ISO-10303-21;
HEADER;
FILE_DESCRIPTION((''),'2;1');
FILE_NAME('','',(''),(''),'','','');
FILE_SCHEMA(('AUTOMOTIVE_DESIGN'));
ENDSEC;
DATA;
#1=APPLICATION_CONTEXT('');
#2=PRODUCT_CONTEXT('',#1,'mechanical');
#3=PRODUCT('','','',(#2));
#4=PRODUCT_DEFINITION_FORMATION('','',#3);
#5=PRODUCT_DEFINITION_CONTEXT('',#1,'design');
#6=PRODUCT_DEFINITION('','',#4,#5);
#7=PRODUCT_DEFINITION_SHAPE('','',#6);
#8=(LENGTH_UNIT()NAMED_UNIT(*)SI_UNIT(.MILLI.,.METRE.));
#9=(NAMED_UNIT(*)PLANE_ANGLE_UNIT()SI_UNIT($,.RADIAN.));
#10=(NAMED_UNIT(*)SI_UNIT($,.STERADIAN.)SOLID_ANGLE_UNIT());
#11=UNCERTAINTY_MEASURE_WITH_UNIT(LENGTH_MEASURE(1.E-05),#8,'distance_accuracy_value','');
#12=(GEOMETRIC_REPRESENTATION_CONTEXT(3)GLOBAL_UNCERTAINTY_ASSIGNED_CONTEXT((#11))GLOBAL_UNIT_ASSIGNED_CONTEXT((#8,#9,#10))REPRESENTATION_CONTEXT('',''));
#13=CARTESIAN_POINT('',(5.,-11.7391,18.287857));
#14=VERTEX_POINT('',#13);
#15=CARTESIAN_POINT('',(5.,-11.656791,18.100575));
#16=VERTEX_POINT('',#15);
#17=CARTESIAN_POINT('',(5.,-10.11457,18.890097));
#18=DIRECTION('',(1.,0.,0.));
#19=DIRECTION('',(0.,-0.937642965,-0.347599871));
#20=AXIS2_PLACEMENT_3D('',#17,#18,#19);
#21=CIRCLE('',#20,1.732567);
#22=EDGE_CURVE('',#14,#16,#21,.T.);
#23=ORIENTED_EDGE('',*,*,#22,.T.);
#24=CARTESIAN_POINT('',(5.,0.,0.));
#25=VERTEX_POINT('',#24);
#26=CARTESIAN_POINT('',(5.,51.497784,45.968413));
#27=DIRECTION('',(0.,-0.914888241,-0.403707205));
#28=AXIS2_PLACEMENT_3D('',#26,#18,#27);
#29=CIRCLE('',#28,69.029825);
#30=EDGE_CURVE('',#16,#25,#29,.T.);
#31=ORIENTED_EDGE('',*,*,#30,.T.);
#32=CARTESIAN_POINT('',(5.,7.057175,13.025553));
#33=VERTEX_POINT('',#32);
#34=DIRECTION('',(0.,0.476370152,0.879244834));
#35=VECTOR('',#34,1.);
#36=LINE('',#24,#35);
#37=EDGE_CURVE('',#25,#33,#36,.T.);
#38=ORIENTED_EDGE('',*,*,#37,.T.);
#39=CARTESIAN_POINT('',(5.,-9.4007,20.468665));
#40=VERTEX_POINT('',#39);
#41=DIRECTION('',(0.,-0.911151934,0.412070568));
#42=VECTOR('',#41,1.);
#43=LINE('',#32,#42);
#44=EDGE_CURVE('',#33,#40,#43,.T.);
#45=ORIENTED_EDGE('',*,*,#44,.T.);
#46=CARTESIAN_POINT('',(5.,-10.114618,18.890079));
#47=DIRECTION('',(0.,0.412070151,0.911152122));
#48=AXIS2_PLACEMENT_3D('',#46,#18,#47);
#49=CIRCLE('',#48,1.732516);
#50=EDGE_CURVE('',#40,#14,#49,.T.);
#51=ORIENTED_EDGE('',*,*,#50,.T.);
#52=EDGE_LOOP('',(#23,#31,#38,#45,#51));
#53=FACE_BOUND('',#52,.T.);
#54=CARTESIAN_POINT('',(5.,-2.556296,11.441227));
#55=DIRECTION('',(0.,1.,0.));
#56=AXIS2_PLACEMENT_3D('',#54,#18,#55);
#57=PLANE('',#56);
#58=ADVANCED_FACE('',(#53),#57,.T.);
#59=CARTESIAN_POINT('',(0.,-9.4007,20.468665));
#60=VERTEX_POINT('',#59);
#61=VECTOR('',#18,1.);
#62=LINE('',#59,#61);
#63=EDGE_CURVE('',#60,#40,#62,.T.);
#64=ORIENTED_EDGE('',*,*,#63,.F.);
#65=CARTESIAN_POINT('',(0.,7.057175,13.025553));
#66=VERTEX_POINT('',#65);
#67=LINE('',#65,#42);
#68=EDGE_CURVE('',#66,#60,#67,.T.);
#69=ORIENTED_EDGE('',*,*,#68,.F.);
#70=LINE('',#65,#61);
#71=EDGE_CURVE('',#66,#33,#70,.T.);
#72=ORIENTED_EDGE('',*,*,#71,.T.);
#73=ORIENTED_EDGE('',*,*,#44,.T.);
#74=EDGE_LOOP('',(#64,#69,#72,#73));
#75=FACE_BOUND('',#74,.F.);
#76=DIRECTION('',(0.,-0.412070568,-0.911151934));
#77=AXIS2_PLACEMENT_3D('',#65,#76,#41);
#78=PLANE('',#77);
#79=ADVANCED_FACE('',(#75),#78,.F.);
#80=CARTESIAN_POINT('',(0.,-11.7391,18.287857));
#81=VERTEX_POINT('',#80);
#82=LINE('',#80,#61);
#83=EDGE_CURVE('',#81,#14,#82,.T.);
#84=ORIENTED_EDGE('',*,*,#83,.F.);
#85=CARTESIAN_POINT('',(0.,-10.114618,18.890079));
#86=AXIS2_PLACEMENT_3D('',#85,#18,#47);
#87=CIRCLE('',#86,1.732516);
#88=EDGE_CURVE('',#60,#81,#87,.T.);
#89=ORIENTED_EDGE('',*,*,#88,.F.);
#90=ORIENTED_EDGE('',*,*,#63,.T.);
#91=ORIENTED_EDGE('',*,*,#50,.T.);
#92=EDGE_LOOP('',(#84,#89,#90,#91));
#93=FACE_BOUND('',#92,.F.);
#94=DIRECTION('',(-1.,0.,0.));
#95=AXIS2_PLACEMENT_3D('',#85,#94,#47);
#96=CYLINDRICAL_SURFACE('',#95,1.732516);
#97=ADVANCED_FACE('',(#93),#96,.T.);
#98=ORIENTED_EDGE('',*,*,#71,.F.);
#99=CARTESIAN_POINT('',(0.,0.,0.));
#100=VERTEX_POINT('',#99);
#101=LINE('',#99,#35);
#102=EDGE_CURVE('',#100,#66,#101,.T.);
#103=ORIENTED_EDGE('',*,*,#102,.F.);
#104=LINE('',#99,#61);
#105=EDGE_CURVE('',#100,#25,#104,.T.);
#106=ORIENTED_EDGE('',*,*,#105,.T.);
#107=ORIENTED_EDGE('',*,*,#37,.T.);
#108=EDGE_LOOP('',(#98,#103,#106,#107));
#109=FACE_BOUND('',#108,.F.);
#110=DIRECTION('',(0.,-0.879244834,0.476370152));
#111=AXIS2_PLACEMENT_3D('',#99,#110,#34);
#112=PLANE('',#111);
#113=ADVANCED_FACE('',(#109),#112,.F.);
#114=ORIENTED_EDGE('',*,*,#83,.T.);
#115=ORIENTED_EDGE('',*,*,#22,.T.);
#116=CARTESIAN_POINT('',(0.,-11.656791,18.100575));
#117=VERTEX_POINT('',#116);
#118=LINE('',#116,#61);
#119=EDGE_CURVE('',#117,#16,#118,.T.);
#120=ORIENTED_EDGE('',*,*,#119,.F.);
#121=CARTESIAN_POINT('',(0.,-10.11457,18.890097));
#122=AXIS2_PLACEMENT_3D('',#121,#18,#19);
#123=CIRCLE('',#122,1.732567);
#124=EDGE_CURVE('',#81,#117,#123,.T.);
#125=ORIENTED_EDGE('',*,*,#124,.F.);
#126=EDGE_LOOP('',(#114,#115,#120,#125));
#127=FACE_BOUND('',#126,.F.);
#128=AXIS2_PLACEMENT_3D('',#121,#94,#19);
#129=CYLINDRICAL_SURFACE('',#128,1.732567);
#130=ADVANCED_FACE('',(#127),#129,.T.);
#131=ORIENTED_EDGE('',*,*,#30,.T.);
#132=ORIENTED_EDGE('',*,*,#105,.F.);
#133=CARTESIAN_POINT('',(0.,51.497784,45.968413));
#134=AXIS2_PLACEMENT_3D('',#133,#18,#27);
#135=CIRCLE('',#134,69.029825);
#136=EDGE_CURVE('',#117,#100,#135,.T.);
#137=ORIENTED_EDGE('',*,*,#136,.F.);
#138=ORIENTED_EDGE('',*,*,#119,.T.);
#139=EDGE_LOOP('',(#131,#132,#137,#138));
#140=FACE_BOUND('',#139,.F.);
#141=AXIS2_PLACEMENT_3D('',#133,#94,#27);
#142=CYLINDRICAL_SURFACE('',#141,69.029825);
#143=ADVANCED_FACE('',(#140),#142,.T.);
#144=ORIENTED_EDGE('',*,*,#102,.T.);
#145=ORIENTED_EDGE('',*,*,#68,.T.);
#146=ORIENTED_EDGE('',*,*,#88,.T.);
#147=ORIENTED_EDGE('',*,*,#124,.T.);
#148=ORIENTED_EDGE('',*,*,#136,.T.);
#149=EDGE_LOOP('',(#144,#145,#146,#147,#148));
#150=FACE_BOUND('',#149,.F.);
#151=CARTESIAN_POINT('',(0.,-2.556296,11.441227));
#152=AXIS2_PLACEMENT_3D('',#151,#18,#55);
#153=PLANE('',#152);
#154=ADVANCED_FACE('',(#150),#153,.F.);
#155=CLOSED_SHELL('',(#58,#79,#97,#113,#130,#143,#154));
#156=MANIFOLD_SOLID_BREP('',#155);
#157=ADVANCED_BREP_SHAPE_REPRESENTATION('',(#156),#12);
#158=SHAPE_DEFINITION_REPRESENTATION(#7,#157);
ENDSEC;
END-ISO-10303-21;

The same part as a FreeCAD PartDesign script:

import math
import FreeCAD as App
import Part
import Sketcher

V = App.Vector

doc = App.newDocument("Part")
body = doc.addObject("PartDesign::Body", "Body")

# Sketch on YZ plane
sketch1 = doc.addObject("Sketcher::SketchObject", "Sketch")
body.addObject(sketch1)
sketch1.AttachmentSupport = (doc.YZ_Plane, [""])
sketch1.MapMode = "FlatFace"
sketch1.addGeometry(Part.LineSegment(V(7.06, 13.03, 0), V(-9.4, 20.47, 0)), False)
sketch1.addGeometry(Part.ArcOfCircle(Part.Circle(V(-10.11, 18.89, 0), V(0, 0, 1), 1.73), math.radians(66), math.radians(200)), False)
sketch1.addGeometry(Part.ArcOfCircle(Part.Circle(V(-10.11, 18.89, 0), V(0, 0, 1), 1.73), math.radians(-159.66), math.radians(-152.89)), False)
sketch1.addGeometry(Part.ArcOfCircle(Part.Circle(V(51.5, 45.97, 0), V(0, 0, 1), 69.03), math.radians(-156.19), math.radians(-138.25)), False)
sketch1.addGeometry(Part.LineSegment(V(0, 0, 0), V(7.06, 13.03, 0)), False)
sketch1.addConstraint(Sketcher.Constraint("Tangent", 0, 2, 1, 1))
sketch1.addConstraint(Sketcher.Constraint("Tangent", 1, 2, 2, 1))
sketch1.addConstraint(Sketcher.Constraint("Coincident", 2, 2, 3, 1))
sketch1.addConstraint(Sketcher.Constraint("Coincident", 3, 2, 4, 1))
sketch1.addConstraint(Sketcher.Constraint("Coincident", 4, 2, 0, 1))
sketch1.addConstraint(Sketcher.Constraint("Coincident", 3, 2, -1, 1))
sketch1.addConstraint(Sketcher.Constraint("Radius", 1, 1.732516))
sketch1.addConstraint(Sketcher.Constraint("Radius", 2, 1.732567))
sketch1.addConstraint(Sketcher.Constraint("Radius", 3, 69.029825))
sketch1.addConstraint(Sketcher.Constraint("DistanceX", 0, 2, -1, 1, 9.4007))
sketch1.addConstraint(Sketcher.Constraint("DistanceX", 1, 2, -1, 1, 11.7391))
sketch1.addConstraint(Sketcher.Constraint("DistanceX", 1, 3, -1, 1, 10.114618))
sketch1.addConstraint(Sketcher.Constraint("DistanceY", -1, 1, 1, 3, 18.890079))
sketch1.addConstraint(Sketcher.Constraint("DistanceX", 2, 2, -1, 1, 11.656791))
sketch1.addConstraint(Sketcher.Constraint("Distance", 0, 18.062712))
pad1 = doc.addObject("PartDesign::Pad", "Pad")
body.addObject(pad1)
pad1.Profile = sketch1
pad1.Length = 5

doc.recompute()
